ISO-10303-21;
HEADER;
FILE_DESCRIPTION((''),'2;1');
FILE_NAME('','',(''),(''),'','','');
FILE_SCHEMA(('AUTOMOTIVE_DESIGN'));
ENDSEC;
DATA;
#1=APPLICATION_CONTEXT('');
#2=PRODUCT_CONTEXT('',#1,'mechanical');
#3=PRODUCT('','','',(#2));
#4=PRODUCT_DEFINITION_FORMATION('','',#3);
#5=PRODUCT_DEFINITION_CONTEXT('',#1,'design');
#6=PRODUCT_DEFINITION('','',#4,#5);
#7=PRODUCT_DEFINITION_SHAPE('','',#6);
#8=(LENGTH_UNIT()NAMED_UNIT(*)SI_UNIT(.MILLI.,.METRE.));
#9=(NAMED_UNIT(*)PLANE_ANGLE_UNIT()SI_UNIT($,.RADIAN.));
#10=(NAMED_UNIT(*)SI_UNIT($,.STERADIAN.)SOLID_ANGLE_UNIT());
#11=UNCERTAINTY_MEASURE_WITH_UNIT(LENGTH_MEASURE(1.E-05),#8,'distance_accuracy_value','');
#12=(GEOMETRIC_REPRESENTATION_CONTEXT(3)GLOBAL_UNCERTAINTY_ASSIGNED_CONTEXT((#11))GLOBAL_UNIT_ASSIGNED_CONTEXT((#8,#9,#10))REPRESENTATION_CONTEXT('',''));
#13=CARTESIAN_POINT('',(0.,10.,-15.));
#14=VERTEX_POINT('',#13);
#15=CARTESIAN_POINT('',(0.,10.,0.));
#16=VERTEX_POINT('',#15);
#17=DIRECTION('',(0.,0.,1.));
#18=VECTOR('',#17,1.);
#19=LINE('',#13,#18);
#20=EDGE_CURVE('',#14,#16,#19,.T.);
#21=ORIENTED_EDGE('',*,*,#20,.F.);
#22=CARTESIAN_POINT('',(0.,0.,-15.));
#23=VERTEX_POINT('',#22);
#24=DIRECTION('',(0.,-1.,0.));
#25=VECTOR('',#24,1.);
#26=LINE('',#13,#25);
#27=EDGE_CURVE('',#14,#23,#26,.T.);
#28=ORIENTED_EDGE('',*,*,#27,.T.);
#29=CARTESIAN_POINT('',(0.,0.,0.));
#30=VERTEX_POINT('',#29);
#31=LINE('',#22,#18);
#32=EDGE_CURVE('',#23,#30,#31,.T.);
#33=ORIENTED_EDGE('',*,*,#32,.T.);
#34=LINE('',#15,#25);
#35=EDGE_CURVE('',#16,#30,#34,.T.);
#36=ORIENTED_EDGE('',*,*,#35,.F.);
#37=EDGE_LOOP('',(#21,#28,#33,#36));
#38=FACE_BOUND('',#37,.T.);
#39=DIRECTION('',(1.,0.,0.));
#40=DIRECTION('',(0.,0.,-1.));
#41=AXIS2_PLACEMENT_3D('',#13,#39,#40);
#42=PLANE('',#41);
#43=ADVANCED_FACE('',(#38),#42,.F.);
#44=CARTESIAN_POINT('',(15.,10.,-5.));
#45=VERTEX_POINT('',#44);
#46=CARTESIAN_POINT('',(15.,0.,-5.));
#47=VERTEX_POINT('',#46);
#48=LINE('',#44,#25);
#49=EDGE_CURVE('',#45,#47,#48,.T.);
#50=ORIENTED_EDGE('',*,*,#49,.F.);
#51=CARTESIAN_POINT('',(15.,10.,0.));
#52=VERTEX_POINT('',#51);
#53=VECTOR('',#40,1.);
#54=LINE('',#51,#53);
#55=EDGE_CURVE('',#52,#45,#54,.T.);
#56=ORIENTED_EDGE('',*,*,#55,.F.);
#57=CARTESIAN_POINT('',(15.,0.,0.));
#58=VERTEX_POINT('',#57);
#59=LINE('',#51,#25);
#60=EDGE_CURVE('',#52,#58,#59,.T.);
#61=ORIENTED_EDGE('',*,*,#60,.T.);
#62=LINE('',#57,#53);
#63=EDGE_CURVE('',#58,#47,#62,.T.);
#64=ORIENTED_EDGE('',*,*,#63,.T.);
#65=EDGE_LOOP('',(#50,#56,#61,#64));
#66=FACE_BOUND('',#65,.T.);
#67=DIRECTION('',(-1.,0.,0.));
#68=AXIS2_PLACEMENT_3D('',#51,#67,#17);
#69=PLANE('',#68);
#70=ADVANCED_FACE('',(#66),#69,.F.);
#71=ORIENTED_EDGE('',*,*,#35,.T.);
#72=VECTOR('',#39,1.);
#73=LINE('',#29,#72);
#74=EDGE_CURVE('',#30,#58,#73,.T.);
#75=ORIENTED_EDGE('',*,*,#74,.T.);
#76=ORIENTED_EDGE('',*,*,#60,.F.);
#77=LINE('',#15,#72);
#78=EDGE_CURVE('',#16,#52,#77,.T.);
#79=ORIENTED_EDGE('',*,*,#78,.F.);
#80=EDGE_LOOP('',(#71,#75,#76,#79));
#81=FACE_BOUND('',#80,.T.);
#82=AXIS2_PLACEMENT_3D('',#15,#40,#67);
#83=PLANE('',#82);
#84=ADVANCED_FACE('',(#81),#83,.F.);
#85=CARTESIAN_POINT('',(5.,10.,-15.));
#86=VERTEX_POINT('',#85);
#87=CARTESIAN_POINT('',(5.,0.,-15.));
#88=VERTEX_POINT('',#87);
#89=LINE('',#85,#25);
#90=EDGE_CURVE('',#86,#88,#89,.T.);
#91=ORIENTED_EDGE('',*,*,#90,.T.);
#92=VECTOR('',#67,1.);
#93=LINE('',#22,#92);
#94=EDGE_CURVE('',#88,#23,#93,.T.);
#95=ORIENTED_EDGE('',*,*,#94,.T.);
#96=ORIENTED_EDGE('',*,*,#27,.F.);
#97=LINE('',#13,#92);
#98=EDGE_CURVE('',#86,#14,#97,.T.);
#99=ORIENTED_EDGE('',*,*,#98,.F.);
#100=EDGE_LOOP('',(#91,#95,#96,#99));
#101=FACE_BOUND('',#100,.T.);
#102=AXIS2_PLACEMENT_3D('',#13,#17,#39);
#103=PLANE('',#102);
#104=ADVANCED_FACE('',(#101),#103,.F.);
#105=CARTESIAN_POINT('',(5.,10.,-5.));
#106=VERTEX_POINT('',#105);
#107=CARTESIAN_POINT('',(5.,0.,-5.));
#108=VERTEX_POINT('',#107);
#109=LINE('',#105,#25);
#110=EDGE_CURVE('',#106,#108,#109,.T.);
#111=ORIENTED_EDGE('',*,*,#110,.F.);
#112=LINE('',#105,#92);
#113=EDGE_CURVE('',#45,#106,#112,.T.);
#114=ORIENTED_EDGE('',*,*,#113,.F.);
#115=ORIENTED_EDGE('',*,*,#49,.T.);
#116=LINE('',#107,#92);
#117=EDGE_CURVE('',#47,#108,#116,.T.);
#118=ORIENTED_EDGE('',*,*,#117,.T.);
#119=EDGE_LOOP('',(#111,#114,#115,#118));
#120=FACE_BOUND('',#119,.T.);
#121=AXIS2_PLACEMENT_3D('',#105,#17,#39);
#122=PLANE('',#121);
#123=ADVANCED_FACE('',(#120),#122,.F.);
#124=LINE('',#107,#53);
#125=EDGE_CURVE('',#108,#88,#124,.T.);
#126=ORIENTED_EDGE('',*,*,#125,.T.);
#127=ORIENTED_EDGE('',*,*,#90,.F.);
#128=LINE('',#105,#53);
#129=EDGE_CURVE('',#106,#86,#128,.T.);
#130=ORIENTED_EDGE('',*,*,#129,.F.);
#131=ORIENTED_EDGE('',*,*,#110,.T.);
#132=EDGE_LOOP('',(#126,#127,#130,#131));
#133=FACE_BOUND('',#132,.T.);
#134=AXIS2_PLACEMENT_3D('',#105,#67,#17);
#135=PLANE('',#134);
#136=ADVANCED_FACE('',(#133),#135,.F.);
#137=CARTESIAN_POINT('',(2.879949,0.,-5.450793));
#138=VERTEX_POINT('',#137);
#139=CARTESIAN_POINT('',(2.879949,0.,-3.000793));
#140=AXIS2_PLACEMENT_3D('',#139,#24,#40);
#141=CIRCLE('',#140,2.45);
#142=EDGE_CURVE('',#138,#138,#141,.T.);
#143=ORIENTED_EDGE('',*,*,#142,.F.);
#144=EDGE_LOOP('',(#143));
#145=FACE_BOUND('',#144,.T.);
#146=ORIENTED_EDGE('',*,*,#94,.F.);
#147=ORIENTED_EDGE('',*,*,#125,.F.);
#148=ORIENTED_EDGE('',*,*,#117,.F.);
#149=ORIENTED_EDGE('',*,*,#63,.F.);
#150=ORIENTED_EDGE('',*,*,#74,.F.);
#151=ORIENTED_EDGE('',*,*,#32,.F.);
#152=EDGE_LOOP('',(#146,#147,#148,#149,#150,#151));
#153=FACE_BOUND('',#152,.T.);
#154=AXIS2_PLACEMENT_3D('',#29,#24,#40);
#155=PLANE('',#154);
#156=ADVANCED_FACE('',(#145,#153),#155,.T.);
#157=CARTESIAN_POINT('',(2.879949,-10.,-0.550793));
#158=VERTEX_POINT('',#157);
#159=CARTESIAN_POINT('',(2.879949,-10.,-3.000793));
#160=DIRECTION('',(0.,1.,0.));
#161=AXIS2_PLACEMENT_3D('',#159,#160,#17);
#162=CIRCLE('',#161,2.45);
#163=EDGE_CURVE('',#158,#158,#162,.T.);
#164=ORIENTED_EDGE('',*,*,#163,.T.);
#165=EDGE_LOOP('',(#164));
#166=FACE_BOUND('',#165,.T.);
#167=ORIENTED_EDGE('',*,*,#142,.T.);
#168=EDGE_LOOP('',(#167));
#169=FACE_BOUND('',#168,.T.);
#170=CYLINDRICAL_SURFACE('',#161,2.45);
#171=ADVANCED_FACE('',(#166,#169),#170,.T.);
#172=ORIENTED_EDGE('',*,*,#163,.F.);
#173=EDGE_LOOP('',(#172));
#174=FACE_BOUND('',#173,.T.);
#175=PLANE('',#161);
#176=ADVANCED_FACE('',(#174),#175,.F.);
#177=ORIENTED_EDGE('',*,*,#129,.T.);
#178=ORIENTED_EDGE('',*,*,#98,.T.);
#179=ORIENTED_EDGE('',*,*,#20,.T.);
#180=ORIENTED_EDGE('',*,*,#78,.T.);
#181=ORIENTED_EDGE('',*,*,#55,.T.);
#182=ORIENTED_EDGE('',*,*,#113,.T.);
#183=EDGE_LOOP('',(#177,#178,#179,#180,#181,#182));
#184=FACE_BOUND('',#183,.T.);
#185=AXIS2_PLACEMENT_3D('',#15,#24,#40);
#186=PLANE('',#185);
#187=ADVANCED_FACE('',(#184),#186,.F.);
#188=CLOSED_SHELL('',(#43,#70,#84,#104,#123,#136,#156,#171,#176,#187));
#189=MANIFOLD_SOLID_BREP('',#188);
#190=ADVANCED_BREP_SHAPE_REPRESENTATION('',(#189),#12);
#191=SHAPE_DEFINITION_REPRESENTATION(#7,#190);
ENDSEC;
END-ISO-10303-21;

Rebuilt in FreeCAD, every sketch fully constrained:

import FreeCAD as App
import Part
import Sketcher

V = App.Vector
Q = App.Units.Quantity


def add_polygon(sketch, points):
    """Adds a closed chain of lines whose ends are joined by coincident constraints."""
    first, n = sketch.GeometryCount, len(points)
    for a, b in zip(points, points[1:] + points[:1]):
        sketch.addGeometry(Part.LineSegment(App.Vector(*a, 0), App.Vector(*b, 0)), False)
    for i in range(n):
        sketch.addConstraint(Sketcher.Constraint("Coincident", first + i, 2, first + (i + 1) % n, 1))

doc = App.newDocument("Part")
body = doc.addObject("PartDesign::Body", "Body")

sketch1 = body.newObject("Sketcher::SketchObject", "Sketch")
sketch1.AttachmentSupport = (doc.getObject("XZ_Plane"), [""])
sketch1.MapMode = "FlatFace"
add_polygon(sketch1, [(0, -15), (0, 0), (15, 0), (15, -5), (5, -5), (5, -15)])
sketch1.addGeometry(Part.Circle(V(2.9, -3, 0), V(0, 0, 1), 2.5), False)
sketch1.addConstraint([
    Sketcher.Constraint("Vertical", 0),
    Sketcher.Constraint("Horizontal", 1),
    Sketcher.Constraint("Vertical", 2),
    Sketcher.Constraint("Horizontal", 3),
    Sketcher.Constraint("Vertical", 4),
    Sketcher.Constraint("Horizontal", 5),
    Sketcher.Constraint("Coincident", 0, 2, -1, 1),
    Sketcher.Constraint("Equal", 1, 0),
    Sketcher.Constraint("Equal", 5, 2),
    Sketcher.Constraint("Diameter", 6, Q("5 mm")),
    Sketcher.Constraint("DistanceX", 1, 1, 1, 2, Q("15 mm")),
    Sketcher.Constraint("DistanceX", 3, 2, 3, 1, Q("10 mm")),
    Sketcher.Constraint("DistanceX", -1, 1, 6, 3, Q("2.879949 mm")),
    Sketcher.Constraint("DistanceY", 6, 3, -1, 1, Q("3.000793 mm")),
])
pad1 = body.newObject("PartDesign::Pad", "Pad")
pad1.Profile = sketch1
pad1.Length = 10
pad1.Reversed = True
body2 = doc.addObject("PartDesign::Body", "Body001")

sketch2 = body2.newObject("Sketcher::SketchObject", "Sketch001")
sketch2.AttachmentSupport = (doc.getObject("XZ_Plane001"), [""])
sketch2.MapMode = "FlatFace"
sketch2.AttachmentOffset = App.Placement(V(0, 0, -10), App.Rotation())
sketch2.addGeometry(Part.Circle(V(2.9, -3, 0), V(0, 0, 1), 2.5), False)
sketch2.addConstraint([
    Sketcher.Constraint("Diameter", 0, Q("4.9 mm")),
    Sketcher.Constraint("DistanceX", -1, 1, 0, 3, Q("2.879949 mm")),
    Sketcher.Constraint("DistanceY", 0, 3, -1, 1, Q("3.000793 mm")),
])
pad2 = body2.newObject("PartDesign::Pad", "Pad001")
pad2.Profile = sketch2
pad2.Length = 20
body.AllowCompound = True
doc.recompute()

boolean = body.newObject("PartDesign::Boolean", "Boolean")
boolean.Type = "Fuse"
boolean.addObjects([body2])

sketch3 = body.newObject("Sketcher::SketchObject", "Sketch002")
sketch3.AttachmentSupport = (doc.getObject("XZ_Plane"), [""])
sketch3.MapMode = "FlatFace"
sketch3.addGeometry(Part.Circle(V(2.9, -3, 0), V(0, 0, 1), 2.5), False)
sketch3.addConstraint([
    Sketcher.Constraint("Diameter", 0, Q("5 mm")),
    Sketcher.Constraint("DistanceX", -1, 1, 0, 3, Q("2.879949 mm")),
    Sketcher.Constraint("DistanceY", 0, 3, -1, 1, Q("3.000793 mm")),
])
pad3 = body.newObject("PartDesign::Pad", "Pad002")
pad3.Profile = sketch3
pad3.Length = 10
pad3.Reversed = True

doc.recompute()
